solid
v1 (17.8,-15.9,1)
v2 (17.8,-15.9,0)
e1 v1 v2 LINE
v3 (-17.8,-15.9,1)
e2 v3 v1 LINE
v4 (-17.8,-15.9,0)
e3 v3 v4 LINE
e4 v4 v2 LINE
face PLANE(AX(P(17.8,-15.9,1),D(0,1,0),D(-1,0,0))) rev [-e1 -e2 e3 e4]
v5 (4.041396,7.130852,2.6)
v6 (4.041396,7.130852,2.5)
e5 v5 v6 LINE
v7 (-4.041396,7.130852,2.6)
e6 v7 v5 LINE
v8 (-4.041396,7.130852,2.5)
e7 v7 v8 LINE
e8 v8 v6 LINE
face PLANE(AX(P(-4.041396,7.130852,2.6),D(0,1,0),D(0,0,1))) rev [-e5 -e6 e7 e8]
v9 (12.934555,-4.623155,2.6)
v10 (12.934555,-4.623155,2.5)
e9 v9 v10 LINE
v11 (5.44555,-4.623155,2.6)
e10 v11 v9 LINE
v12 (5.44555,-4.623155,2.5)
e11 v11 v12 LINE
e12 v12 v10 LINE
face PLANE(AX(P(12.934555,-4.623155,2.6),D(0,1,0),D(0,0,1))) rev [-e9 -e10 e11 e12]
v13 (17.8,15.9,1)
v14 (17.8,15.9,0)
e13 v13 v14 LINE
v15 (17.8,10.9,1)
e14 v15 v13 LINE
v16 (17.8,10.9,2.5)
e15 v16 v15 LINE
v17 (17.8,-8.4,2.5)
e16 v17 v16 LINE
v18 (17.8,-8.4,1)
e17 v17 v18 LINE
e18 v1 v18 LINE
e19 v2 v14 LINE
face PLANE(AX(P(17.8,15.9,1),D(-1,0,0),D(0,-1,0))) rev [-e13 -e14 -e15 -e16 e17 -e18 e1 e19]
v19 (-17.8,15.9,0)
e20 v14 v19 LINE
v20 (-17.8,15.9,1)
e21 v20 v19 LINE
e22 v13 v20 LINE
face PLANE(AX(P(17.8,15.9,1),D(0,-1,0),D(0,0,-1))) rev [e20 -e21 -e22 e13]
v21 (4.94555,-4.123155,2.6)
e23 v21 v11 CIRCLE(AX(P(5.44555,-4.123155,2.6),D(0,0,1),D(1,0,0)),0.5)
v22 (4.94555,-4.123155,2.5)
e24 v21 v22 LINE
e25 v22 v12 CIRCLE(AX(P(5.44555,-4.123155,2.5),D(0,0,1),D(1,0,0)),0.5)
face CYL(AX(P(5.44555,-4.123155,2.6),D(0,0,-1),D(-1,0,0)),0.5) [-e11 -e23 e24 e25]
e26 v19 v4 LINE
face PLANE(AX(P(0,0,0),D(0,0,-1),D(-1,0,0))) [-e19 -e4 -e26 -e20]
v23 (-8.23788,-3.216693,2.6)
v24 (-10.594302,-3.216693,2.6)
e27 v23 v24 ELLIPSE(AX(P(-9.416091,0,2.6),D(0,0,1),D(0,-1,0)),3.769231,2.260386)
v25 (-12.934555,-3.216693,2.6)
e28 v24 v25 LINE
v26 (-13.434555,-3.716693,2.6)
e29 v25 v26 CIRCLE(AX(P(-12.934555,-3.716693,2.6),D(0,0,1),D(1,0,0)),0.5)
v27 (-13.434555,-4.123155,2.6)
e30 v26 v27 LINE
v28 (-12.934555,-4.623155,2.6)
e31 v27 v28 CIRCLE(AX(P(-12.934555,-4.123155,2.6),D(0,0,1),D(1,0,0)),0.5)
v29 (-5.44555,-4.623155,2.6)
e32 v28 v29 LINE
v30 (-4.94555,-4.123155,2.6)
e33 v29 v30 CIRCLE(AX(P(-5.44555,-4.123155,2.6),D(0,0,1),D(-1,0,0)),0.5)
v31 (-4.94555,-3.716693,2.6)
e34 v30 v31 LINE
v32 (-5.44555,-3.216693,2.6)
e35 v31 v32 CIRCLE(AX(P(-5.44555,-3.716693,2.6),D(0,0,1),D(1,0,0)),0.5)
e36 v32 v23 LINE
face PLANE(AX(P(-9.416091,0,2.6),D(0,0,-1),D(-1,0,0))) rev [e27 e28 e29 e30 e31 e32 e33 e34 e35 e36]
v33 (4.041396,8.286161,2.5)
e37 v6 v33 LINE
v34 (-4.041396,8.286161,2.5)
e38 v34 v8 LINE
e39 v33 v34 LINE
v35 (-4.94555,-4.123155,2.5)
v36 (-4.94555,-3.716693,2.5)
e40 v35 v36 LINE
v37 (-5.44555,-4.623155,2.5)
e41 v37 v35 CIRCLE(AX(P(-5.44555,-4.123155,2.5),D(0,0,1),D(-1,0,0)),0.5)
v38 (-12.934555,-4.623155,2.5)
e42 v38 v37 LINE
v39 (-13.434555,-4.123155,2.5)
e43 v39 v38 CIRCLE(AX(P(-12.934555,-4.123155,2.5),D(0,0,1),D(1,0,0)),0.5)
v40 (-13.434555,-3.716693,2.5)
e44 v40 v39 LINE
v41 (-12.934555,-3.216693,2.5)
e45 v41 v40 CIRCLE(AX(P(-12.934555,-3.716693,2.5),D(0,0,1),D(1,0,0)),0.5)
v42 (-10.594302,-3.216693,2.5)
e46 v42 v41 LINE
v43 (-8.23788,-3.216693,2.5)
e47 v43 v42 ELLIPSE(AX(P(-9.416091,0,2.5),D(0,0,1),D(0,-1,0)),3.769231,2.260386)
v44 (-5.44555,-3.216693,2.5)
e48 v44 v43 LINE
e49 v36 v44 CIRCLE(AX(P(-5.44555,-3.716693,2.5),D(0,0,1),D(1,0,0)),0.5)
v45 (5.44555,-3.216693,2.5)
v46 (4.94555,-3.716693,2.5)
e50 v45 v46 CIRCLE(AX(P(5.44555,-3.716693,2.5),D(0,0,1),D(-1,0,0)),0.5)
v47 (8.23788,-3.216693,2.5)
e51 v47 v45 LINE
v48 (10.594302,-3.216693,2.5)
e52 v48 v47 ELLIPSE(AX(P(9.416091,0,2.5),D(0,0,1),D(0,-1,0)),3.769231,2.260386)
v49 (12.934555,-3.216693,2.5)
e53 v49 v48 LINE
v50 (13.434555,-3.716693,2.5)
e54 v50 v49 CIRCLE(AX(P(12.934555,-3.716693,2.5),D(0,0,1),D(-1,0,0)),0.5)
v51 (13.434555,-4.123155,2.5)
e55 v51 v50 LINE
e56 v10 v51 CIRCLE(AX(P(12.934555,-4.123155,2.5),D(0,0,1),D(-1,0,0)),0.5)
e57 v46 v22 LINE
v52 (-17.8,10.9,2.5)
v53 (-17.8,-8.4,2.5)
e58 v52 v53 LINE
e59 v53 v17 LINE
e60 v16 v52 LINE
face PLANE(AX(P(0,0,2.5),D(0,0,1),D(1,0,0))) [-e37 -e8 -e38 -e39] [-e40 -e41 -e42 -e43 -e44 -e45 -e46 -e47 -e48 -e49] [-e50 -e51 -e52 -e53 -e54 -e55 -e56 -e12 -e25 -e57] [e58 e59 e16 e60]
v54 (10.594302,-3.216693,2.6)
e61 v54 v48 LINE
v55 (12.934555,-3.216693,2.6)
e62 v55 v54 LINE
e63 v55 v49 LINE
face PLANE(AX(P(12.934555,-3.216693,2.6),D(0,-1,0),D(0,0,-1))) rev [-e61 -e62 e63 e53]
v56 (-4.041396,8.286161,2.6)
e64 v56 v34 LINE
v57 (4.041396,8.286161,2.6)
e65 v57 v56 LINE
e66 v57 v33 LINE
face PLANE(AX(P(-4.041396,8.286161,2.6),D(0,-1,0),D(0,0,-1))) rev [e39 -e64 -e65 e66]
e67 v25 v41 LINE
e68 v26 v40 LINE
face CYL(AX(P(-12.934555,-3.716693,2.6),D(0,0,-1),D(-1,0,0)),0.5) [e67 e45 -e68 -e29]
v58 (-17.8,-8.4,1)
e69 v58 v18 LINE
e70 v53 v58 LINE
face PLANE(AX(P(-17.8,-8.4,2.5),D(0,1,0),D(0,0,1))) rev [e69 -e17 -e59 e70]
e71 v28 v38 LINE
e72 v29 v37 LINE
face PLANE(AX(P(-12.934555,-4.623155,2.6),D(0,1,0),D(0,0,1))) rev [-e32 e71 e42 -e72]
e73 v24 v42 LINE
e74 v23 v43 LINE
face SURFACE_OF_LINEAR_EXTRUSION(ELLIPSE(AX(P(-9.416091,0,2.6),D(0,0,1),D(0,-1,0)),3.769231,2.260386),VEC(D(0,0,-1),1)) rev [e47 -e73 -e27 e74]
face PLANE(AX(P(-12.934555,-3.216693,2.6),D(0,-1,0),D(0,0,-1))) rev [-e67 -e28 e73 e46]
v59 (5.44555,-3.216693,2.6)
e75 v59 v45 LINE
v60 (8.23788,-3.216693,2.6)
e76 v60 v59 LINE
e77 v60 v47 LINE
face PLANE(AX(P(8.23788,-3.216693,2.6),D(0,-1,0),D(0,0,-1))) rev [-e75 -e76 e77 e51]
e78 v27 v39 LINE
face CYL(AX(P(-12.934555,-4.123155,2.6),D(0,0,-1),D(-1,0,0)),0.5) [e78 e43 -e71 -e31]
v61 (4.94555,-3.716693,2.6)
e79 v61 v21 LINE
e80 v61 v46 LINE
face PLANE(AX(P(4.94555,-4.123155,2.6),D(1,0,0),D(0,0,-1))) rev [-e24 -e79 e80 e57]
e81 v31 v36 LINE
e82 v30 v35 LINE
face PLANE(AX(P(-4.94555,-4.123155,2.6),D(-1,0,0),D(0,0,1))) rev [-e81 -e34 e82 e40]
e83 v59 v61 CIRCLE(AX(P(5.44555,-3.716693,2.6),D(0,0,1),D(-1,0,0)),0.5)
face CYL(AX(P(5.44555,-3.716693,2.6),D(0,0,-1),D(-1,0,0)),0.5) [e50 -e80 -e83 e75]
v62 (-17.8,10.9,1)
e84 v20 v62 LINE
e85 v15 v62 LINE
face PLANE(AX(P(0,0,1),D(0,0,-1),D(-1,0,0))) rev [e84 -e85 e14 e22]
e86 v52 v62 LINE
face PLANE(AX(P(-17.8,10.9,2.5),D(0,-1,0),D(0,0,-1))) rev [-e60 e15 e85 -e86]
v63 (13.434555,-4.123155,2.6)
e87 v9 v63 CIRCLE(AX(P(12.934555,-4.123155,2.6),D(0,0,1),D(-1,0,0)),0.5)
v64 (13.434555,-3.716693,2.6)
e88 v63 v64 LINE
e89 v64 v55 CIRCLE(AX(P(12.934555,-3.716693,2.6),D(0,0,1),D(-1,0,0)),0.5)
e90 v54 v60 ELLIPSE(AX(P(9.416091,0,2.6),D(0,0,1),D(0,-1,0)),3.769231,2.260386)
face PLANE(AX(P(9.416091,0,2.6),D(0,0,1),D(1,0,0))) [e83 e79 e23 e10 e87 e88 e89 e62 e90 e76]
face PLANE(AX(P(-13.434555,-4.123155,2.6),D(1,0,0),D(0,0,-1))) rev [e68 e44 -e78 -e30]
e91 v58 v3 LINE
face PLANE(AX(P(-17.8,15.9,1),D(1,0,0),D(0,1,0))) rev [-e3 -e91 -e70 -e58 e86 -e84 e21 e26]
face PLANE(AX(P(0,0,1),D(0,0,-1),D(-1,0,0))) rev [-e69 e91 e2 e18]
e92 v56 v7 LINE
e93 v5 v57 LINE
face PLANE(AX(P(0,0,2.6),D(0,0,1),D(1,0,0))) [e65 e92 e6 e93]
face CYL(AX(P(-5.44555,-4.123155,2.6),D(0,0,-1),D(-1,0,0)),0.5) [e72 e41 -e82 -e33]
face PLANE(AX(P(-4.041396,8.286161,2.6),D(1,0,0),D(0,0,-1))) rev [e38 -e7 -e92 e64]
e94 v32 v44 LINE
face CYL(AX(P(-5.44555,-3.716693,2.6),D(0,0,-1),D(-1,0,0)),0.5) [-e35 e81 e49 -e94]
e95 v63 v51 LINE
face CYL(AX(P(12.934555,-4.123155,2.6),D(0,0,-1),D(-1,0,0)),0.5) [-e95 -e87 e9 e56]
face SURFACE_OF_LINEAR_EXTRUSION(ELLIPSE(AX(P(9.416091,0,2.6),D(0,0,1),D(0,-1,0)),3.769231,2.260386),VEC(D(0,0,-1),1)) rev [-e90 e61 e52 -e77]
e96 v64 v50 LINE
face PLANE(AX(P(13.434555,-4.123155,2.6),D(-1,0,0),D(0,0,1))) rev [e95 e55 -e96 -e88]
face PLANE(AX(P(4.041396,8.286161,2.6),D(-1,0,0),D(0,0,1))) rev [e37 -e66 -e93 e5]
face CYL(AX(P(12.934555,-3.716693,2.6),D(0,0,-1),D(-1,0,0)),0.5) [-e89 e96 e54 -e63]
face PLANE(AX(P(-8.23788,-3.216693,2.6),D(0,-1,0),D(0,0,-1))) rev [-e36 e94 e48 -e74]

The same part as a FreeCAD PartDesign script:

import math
import FreeCAD as App
import Part
import Sketcher

V = App.Vector

doc = App.newDocument("Part")
body = doc.addObject("PartDesign::Body", "Body")

# Sketch on XY plane
sketch1 = doc.addObject("Sketcher::SketchObject", "Sketch")
body.addObject(sketch1)
sketch1.AttachmentSupport = (doc.XY_Plane, [""])
sketch1.MapMode = "FlatFace"
sketch1.addGeometry([
    Part.LineSegment(V(-17.8, 15.9, 0), V(-17.8, -15.9, 0)),
    Part.LineSegment(V(-17.8, -15.9, 0), V(17.8, -15.9, 0)),
    Part.LineSegment(V(17.8, -15.9, 0), V(17.8, 15.9, 0)),
    Part.LineSegment(V(17.8, 15.9, 0), V(-17.8, 15.9, 0)),
], False)
sketch1.addConstraint([
    Sketcher.Constraint("Coincident", 0, 2, 1, 1),
    Sketcher.Constraint("Coincident", 1, 2, 2, 1),
    Sketcher.Constraint("Coincident", 2, 2, 3, 1),
    Sketcher.Constraint("Coincident", 3, 2, 0, 1),
    Sketcher.Constraint("Vertical", 0),
    Sketcher.Constraint("Horizontal", 1),
    Sketcher.Constraint("Vertical", 2),
    Sketcher.Constraint("Horizontal", 3),
    Sketcher.Constraint("Symmetric", 0, 2, 2, 2, -1, 1),
    Sketcher.Constraint("DistanceX", 1, 1, 1, 2, 35.6),
    Sketcher.Constraint("DistanceY", 0, 2, 0, 1, 31.8),
])
pad1 = doc.addObject("PartDesign::Pad", "Pad")
body.addObject(pad1)
pad1.Profile = sketch1
pad1.Length = 1

# Sketch on XY plane
sketch2 = doc.addObject("Sketcher::SketchObject", "Sketch001")
body.addObject(sketch2)
sketch2.AttachmentSupport = (doc.XY_Plane, [""])
sketch2.MapMode = "FlatFace"
sketch2.AttachmentOffset = App.Placement(V(0, 0, 1), App.Rotation())
sketch2.addGeometry([
    Part.LineSegment(V(-17.8, 10.9, 0), V(-17.8, -8.4, 0)),
    Part.LineSegment(V(-17.8, -8.4, 0), V(17.8, -8.4, 0)),
    Part.LineSegment(V(17.8, -8.4, 0), V(17.8, 10.9, 0)),
    Part.LineSegment(V(17.8, 10.9, 0), V(-17.8, 10.9, 0)),
], False)
sketch2.addConstraint([
    Sketcher.Constraint("Coincident", 0, 2, 1, 1),
    Sketcher.Constraint("Coincident", 1, 2, 2, 1),
    Sketcher.Constraint("Coincident", 2, 2, 3, 1),
    Sketcher.Constraint("Coincident", 3, 2, 0, 1),
    Sketcher.Constraint("Vertical", 0),
    Sketcher.Constraint("Horizontal", 1),
    Sketcher.Constraint("Vertical", 2),
    Sketcher.Constraint("Horizontal", 3),
    Sketcher.Constraint("DistanceX", 1, 1, 1, 2, 35.6),
    Sketcher.Constraint("DistanceY", 0, 2, 0, 1, 19.3),
    Sketcher.Constraint("DistanceX", 0, 2, -1, 1, 17.8),
    Sketcher.Constraint("DistanceY", 0, 2, -1, 1, 8.4),
])
pad2 = doc.addObject("PartDesign::Pad", "Pad001")
body.addObject(pad2)
pad2.Profile = sketch2
pad2.Length = 1.5

# Sketch on XY plane
sketch3 = doc.addObject("Sketcher::SketchObject", "Sketch002")
body.addObject(sketch3)
sketch3.AttachmentSupport = (doc.XY_Plane, [""])
sketch3.MapMode = "FlatFace"
sketch3.AttachmentOffset = App.Placement(V(0, 0, 2.5), App.Rotation())
sketch3.addGeometry([
    Part.LineSegment(V(8.23788, -3.216693, 0), V(5.44555, -3.216693, 0)),  # 0
    Part.ArcOfCircle(Part.Circle(V(5.44555, -3.716693, 0), V(0, 0, 1), 0.5), math.radians(90), math.radians(180)),  # 1
    Part.LineSegment(V(4.94555, -3.716693, 0), V(4.94555, -4.123155, 0)),  # 2
    Part.ArcOfCircle(Part.Circle(V(5.44555, -4.123155, 0), V(0, 0, 1), 0.5), math.radians(180), math.radians(270)),  # 3
    Part.LineSegment(V(5.44555, -4.623155, 0), V(12.934555, -4.623155, 0)),  # 4
    Part.ArcOfCircle(Part.Circle(V(12.934555, -4.123155, 0), V(0, 0, 1), 0.5), math.radians(-90), math.radians(0)),  # 5
    Part.LineSegment(V(13.434555, -4.123155, 0), V(13.434555, -3.716693, 0)),  # 6
    Part.ArcOfCircle(Part.Circle(V(12.934555, -3.716693, 0), V(0, 0, 1), 0.5), math.radians(0), math.radians(90)),  # 7
    Part.LineSegment(V(12.934555, -3.216693, 0), V(10.594302, -3.216693, 0)),  # 8
    Part.BSplineCurve([V(10.594302, -3.216693, 0), V(17.453446, 3.769231, 0), V(9.416091, 3.769231, 0), V(1.378736, 3.769231, 0), V(8.23788, -3.216693, 0)], [3, 2, 3], [0.54830721, 3.141592654, 5.734878097], False, 2, [1, 0.270732248, 1, 0.270732248, 1], False),  # 9
    Part.LineSegment(V(-4.041396, 8.286161, 0), V(-4.041396, 7.130852, 0)),  # 10
    Part.LineSegment(V(-4.041396, 7.130852, 0), V(4.041396, 7.130852, 0)),  # 11
    Part.LineSegment(V(4.041396, 7.130852, 0), V(4.041396, 8.286161, 0)),  # 12
    Part.LineSegment(V(4.041396, 8.286161, 0), V(-4.041396, 8.286161, 0)),  # 13
    Part.LineSegment(V(-4.94555, -4.123155, 0), V(-4.94555, -3.716693, 0)),  # 14
    Part.ArcOfCircle(Part.Circle(V(-5.44555, -3.716693, 0), V(0, 0, 1), 0.5), math.radians(0), math.radians(90)),  # 15
    Part.LineSegment(V(-5.44555, -3.216693, 0), V(-8.23788, -3.216693, 0)),  # 16
    Part.BSplineCurve([V(-8.23788, -3.216693, 0), V(-1.378736, 3.769231, 0), V(-9.416091, 3.769231, 0), V(-17.453446, 3.769231, 0), V(-10.594302, -3.216693, 0)], [3, 2, 3], [0.54830721, 3.141592654, 5.734878097], False, 2, [1, 0.270732248, 1, 0.270732248, 1], False),  # 17
    Part.LineSegment(V(-10.594302, -3.216693, 0), V(-12.934555, -3.216693, 0)),  # 18
    Part.ArcOfCircle(Part.Circle(V(-12.934555, -3.716693, 0), V(0, 0, 1), 0.5), math.radians(90), math.radians(180)),  # 19
    Part.LineSegment(V(-13.434555, -3.716693, 0), V(-13.434555, -4.123155, 0)),  # 20
    Part.ArcOfCircle(Part.Circle(V(-12.934555, -4.123155, 0), V(0, 0, 1), 0.5), math.radians(180), math.radians(270)),  # 21
    Part.LineSegment(V(-12.934555, -4.623155, 0), V(-5.44555, -4.623155, 0)),  # 22
    Part.ArcOfCircle(Part.Circle(V(-5.44555, -4.123155, 0), V(0, 0, 1), 0.5), math.radians(-90), math.radians(0)),  # 23
], False)
sketch3.addConstraint([
    Sketcher.Constraint("Block", 9),
    Sketcher.Constraint("Block", 17),
    Sketcher.Constraint("Tangent", 0, 2, 1, 1),
    Sketcher.Constraint("Tangent", 1, 2, 2, 1),
    Sketcher.Constraint("Tangent", 2, 2, 3, 1),
    Sketcher.Constraint("Tangent", 3, 2, 4, 1),
    Sketcher.Constraint("Tangent", 4, 2, 5, 1),
    Sketcher.Constraint("Tangent", 5, 2, 6, 1),
    Sketcher.Constraint("Tangent", 6, 2, 7, 1),
    Sketcher.Constraint("Tangent", 7, 2, 8, 1),
    Sketcher.Constraint("Coincident", 8, 2, 9, 1),
    Sketcher.Constraint("Coincident", 9, 2, 0, 1),
    Sketcher.Constraint("Coincident", 10, 2, 11, 1),
    Sketcher.Constraint("Coincident", 11, 2, 12, 1),
    Sketcher.Constraint("Coincident", 12, 2, 13, 1),
    Sketcher.Constraint("Coincident", 13, 2, 10, 1),
    Sketcher.Constraint("Tangent", 14, 2, 15, 1),
    Sketcher.Constraint("Tangent", 15, 2, 16, 1),
    Sketcher.Constraint("Coincident", 16, 2, 17, 1),
    Sketcher.Constraint("Coincident", 17, 2, 18, 1),
    Sketcher.Constraint("Tangent", 18, 2, 19, 1),
    Sketcher.Constraint("Tangent", 19, 2, 20, 1),
    Sketcher.Constraint("Tangent", 20, 2, 21, 1),
    Sketcher.Constraint("Tangent", 21, 2, 22, 1),
    Sketcher.Constraint("Tangent", 22, 2, 23, 1),
    Sketcher.Constraint("Tangent", 23, 2, 14, 1),
    Sketcher.Constraint("Horizontal", 0),
    Sketcher.Constraint("Vertical", 2),
    Sketcher.Constraint("Horizontal", 4),
    Sketcher.Constraint("Vertical", 6),
    Sketcher.Constraint("Horizontal", 8),
    Sketcher.Constraint("Vertical", 10),
    Sketcher.Constraint("Horizontal", 11),
    Sketcher.Constraint("Vertical", 12),
    Sketcher.Constraint("Horizontal", 13),
    Sketcher.Constraint("Vertical", 14),
    Sketcher.Constraint("Horizontal", 16),
    Sketcher.Constraint("Horizontal", 18),
    Sketcher.Constraint("Vertical", 20),
    Sketcher.Constraint("Horizontal", 22),
    Sketcher.Constraint("Equal", 1, 3),
    Sketcher.Constraint("Equal", 3, 5),
    Sketcher.Constraint("Equal", 5, 7),
    Sketcher.Constraint("Equal", 7, 15),
    Sketcher.Constraint("Equal", 15, 19),
    Sketcher.Constraint("Equal", 19, 21),
    Sketcher.Constraint("Equal", 21, 23),
    Sketcher.Constraint("Symmetric", 5, 3, 21, 3, -2),
    Sketcher.Constraint("Equal", 0, 16),
    Sketcher.Constraint("Radius", 1, 0.5),
    Sketcher.Constraint("DistanceX", 0, 2, 0, 1, 2.79233),
    Sketcher.Constraint("DistanceX", 11, 1, 11, 2, 8.082791),
    Sketcher.Constraint("DistanceY", 10, 2, 10, 1, 1.155308),
    Sketcher.Constraint("DistanceX", 4, 1, 4, 2, 7.489005),
    Sketcher.Constraint("DistanceY", 2, 2, 2, 1, 0.406462),
    Sketcher.Constraint("DistanceY", -1, 1, 12, 2, 8.286161),
    Sketcher.Constraint("DistanceX", 19, 3, 10, 2, 8.89316),
])
pad3 = doc.addObject("PartDesign::Pad", "Pad002")
body.addObject(pad3)
pad3.Profile = sketch3
pad3.Length = 0.1

doc.recompute()
